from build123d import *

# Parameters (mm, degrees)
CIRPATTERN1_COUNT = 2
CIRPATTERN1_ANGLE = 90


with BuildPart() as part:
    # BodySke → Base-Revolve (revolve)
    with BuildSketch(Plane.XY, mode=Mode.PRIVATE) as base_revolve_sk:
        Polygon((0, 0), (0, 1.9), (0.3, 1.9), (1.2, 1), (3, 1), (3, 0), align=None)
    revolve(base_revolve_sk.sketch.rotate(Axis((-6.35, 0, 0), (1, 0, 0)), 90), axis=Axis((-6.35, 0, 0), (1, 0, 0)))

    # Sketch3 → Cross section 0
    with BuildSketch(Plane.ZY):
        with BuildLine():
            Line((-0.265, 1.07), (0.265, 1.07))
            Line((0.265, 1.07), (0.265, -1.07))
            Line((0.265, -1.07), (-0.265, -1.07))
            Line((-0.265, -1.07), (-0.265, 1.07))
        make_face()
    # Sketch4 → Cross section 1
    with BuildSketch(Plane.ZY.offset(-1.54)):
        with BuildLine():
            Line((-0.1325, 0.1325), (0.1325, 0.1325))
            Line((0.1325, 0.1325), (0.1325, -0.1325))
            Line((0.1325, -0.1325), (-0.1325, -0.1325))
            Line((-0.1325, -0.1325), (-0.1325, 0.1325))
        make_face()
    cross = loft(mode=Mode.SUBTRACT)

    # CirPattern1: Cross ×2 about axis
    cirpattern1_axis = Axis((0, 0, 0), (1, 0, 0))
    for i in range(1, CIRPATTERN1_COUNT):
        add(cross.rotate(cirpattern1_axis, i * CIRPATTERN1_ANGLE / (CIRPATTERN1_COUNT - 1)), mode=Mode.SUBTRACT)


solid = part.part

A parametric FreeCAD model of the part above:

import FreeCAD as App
import Part
import Sketcher
from FreeCAD import Vector
Q = App.Units.Quantity

doc = App.newDocument("Part")
body = doc.addObject("PartDesign::Body", "Body")

# Sketch on XY plane
sketch1 = body.newObject("Sketcher::SketchObject", "Sketch")
sketch1.AttachmentSupport = (doc.getObject("XY_Plane"), [""])
sketch1.MapMode = "FlatFace"
sketch1.addGeometry([
    Part.LineSegment(Vector(0, 1.9, 0), Vector(0, 0, 0)),  # 0
    Part.LineSegment(Vector(0, 0, 0), Vector(3, 0, 0)),  # 1
    Part.LineSegment(Vector(3, 0, 0), Vector(3, 1, 0)),  # 2
    Part.LineSegment(Vector(3, 1, 0), Vector(1.2, 1, 0)),  # 3
    Part.LineSegment(Vector(1.2, 1, 0), Vector(0.3, 1.9, 0)),  # 4
    Part.LineSegment(Vector(0.3, 1.9, 0), Vector(0, 1.9, 0)),  # 5
], False)
sketch1.addConstraint([
    Sketcher.Constraint("Coincident", 0, 2, 1, 1),
    Sketcher.Constraint("Coincident", 1, 2, 2, 1),
    Sketcher.Constraint("Coincident", 2, 2, 3, 1),
    Sketcher.Constraint("Coincident", 3, 2, 4, 1),
    Sketcher.Constraint("Coincident", 4, 2, 5, 1),
    Sketcher.Constraint("Coincident", 5, 2, 0, 1),
    Sketcher.Constraint("Vertical", 0),
    Sketcher.Constraint("Horizontal", 1),
    Sketcher.Constraint("Vertical", 2),
    Sketcher.Constraint("Horizontal", 3),
    Sketcher.Constraint("Horizontal", 5),
    Sketcher.Constraint("Coincident", 0, 2, -1, 1),
    Sketcher.Constraint("DistanceX", 1, 1, 1, 2, 3.0),
    Sketcher.Constraint("DistanceY", 2, 1, 2, 2, 1.0),
    Sketcher.Constraint("Angle", 4, Q("135 deg")),
    Sketcher.Constraint("DistanceX", 3, 2, 3, 1, 1.8),
    Sketcher.Constraint("DistanceX", 5, 2, 5, 1, 0.3),
])
revolution = body.newObject("PartDesign::Revolution", "Revolution")
revolution.Profile = sketch1
revolution.ReferenceAxis = (sketch1, ["H_Axis"])
revolution.Angle = 360

# Sketch on YZ plane
sketch2 = body.newObject("Sketcher::SketchObject", "Sketch001")
sketch2.AttachmentSupport = (doc.getObject("YZ_Plane"), [""])
sketch2.MapMode = "FlatFace"
sketch2.addGeometry([
    Part.LineSegment(Vector(1.1, 0.3, 0), Vector(1.1, -0.3, 0)),
    Part.LineSegment(Vector(1.1, -0.3, 0), Vector(-1.1, -0.3, 0)),
    Part.LineSegment(Vector(-1.1, -0.3, 0), Vector(-1.1, 0.3, 0)),
    Part.LineSegment(Vector(-1.1, 0.3, 0), Vector(1.1, 0.3, 0)),
], False)
sketch2.addConstraint([
    Sketcher.Constraint("Coincident", 0, 2, 1, 1),
    Sketcher.Constraint("Coincident", 1, 2, 2, 1),
    Sketcher.Constraint("Coincident", 2, 2, 3, 1),
    Sketcher.Constraint("Coincident", 3, 2, 0, 1),
    Sketcher.Constraint("Vertical", 0),
    Sketcher.Constraint("Horizontal", 1),
    Sketcher.Constraint("Vertical", 2),
    Sketcher.Constraint("Horizontal", 3),
    Sketcher.Constraint("Symmetric", 0, 2, 2, 2, -1, 1),
    Sketcher.Constraint("DistanceX", 1, 2, 1, 1, 2.14),
    Sketcher.Constraint("DistanceY", 0, 2, 0, 1, 0.53),
])

# Sketch on YZ plane
sketch3 = body.newObject("Sketcher::SketchObject", "Sketch002")
sketch3.AttachmentSupport = (doc.getObject("YZ_Plane"), [""])
sketch3.MapMode = "FlatFace"
sketch3.AttachmentOffset = App.Placement(Vector(0, 0, 1.54), App.Rotation())
sketch3.addGeometry([
    Part.LineSegment(Vector(0.13, 0.13, 0), Vector(0.13, -0.13, 0)),
    Part.LineSegment(Vector(0.13, -0.13, 0), Vector(-0.13, -0.13, 0)),
    Part.LineSegment(Vector(-0.13, -0.13, 0), Vector(-0.13, 0.13, 0)),
    Part.LineSegment(Vector(-0.13, 0.13, 0), Vector(0.13, 0.13, 0)),
], False)
sketch3.addConstraint([
    Sketcher.Constraint("Coincident", 0, 2, 1, 1),
    Sketcher.Constraint("Coincident", 1, 2, 2, 1),
    Sketcher.Constraint("Coincident", 2, 2, 3, 1),
    Sketcher.Constraint("Coincident", 3, 2, 0, 1),
    Sketcher.Constraint("Vertical", 0),
    Sketcher.Constraint("Horizontal", 1),
    Sketcher.Constraint("Vertical", 2),
    Sketcher.Constraint("Horizontal", 3),
    Sketcher.Constraint("Symmetric", 0, 2, 2, 2, -1, 1),
    Sketcher.Constraint("Equal", 3, 0),
    Sketcher.Constraint("DistanceX", 1, 2, 1, 1, 0.265),
])

subtractiveloft = body.newObject("PartDesign::SubtractiveLoft", "SubtractiveLoft")
subtractiveloft.Profile = sketch2
subtractiveloft.Sections = [sketch3]
doc.recompute()

polarpattern = body.newObject("PartDesign::PolarPattern", "PolarPattern")
polarpattern.Originals = [subtractiveloft]
polarpattern.Axis = (doc.getObject("X_Axis"), [""])
polarpattern.Angle = 90
polarpattern.Occurrences = 2
body.Tip = polarpattern

doc.recompute()
